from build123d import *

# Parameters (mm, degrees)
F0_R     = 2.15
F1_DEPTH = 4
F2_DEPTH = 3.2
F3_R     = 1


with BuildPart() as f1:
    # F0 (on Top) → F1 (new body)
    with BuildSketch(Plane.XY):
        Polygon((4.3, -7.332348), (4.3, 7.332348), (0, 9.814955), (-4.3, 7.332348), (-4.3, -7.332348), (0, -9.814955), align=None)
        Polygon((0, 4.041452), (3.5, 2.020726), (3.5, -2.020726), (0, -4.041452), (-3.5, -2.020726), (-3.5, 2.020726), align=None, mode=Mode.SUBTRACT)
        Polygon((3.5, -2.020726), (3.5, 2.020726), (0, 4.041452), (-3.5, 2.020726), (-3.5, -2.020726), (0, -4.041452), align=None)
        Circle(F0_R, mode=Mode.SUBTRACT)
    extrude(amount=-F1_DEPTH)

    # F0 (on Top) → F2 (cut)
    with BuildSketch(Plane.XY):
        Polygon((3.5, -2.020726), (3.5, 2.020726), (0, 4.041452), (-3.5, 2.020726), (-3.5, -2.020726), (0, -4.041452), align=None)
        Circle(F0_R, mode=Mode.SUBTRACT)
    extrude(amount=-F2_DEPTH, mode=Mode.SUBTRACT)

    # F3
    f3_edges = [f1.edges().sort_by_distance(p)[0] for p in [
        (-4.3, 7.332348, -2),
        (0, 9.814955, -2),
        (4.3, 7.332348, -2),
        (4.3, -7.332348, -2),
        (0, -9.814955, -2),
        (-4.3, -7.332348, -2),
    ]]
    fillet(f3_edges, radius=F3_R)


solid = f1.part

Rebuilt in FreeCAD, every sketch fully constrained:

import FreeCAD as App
import Part
import Sketcher
from FreeCAD import Vector
Q = App.Units.Quantity


def edges_at(feature, points):
    """Names of the edges that pass closest to the given points."""
    edges = feature.Shape.Edges
    near = lambda p: min(range(len(edges)), key=lambda i: edges[i].distToShape(Part.Vertex(*p))[0])
    return sorted({f"Edge{near(p) + 1}" for p in points})


def add_polygon(sketch, points):
    """Adds a closed chain of lines whose ends are joined by coincident constraints."""
    first, n = sketch.GeometryCount, len(points)
    for a, b in zip(points, points[1:] + points[:1]):
        sketch.addGeometry(Part.LineSegment(App.Vector(*a, 0), App.Vector(*b, 0)), False)
    for i in range(n):
        sketch.addConstraint(Sketcher.Constraint("Coincident", first + i, 2, first + (i + 1) % n, 1))

doc = App.newDocument("Part")
body = doc.addObject("PartDesign::Body", "Body")

sketch1 = body.newObject("Sketcher::SketchObject", "Sketch")
sketch1.AttachmentSupport = (doc.getObject("XY_Plane"), [""])
sketch1.MapMode = "FlatFace"
add_polygon(sketch1, [(4.3, -7.332348), (4.3, 7.332348), (0, 9.814955), (-4.3, 7.332348), (-4.3, -7.332348), (0, -9.814955)])
sketch1.addGeometry(Part.Circle(Vector(0, 0, 0), Vector(0, 0, 1), 2.15), False)
sketch1.addConstraint([
    Sketcher.Constraint("Vertical", 0),
    Sketcher.Constraint("Vertical", 3),
    Sketcher.Constraint("Coincident", 6, 3, -1, 1),
    Sketcher.Constraint("Symmetric", 0, 2, 3, 2, -1, 1),
    Sketcher.Constraint("Symmetric", 1, 2, 4, 2, -1, 1),
    Sketcher.Constraint("PointOnObject", 1, 2, -2),
    Sketcher.Constraint("Parallel", 2, 5),
    Sketcher.Constraint("Horizontal", 0, 2, 2, 2),
    Sketcher.Constraint("Diameter", 6, 4.3),
    Sketcher.Constraint("Angle", 1, Q("149.999992 deg")),
    Sketcher.Constraint("DistanceX", -1, 1, 0, 2, 4.3),
    Sketcher.Constraint("DistanceY", 0, 1, 0, 2, 14.664696),
])
pad1 = body.newObject("PartDesign::Pad", "Pad")
pad1.Profile = sketch1
pad1.Length = 4
pad1.Reversed = True

sketch2 = body.newObject("Sketcher::SketchObject", "Sketch001")
sketch2.AttachmentSupport = (doc.getObject("XY_Plane"), [""])
sketch2.MapMode = "FlatFace"
add_polygon(sketch2, [(3.5, -2.020726), (3.5, 2.020726), (0, 4.041452), (-3.5, 2.020726), (-3.5, -2.020726), (0, -4.041452)])
sketch2.addGeometry(Part.Circle(Vector(0, 0, 0), Vector(0, 0, 1), 2.15), False)
sketch2.addConstraint([
    Sketcher.Constraint("Vertical", 0),
    Sketcher.Constraint("Vertical", 3),
    Sketcher.Constraint("Coincident", 6, 3, -1, 1),
    Sketcher.Constraint("Symmetric", 0, 2, 3, 2, -1, 1),
    Sketcher.Constraint("Symmetric", 1, 2, 4, 2, -1, 1),
    Sketcher.Constraint("PointOnObject", 1, 2, -2),
    Sketcher.Constraint("Parallel", 2, 5),
    Sketcher.Constraint("Horizontal", 0, 2, 2, 2),
    Sketcher.Constraint("Diameter", 6, 4.3),
    Sketcher.Constraint("Angle", 1, Q("149.999999 deg")),
    Sketcher.Constraint("DistanceX", 2, 2, 0, 2, 7.0),
    Sketcher.Constraint("DistanceY", 0, 1, 0, 2, 4.041452),
])
pocket1 = body.newObject("PartDesign::Pocket", "Pocket")
pocket1.Profile = sketch2
pocket1.Length = 3.2
doc.recompute()

fillet = body.newObject("PartDesign::Fillet", "Fillet")
fillet.Base = (pocket1, edges_at(pocket1, [
    (-4.3, 7.332, -2),
    (0, 9.815, -2),
    (4.3, 7.332, -2),
    (4.3, -7.332, -2),
    (0, -9.815, -2),
    (-4.3, -7.332, -2),
]))
fillet.Radius = 1

doc.recompute()
